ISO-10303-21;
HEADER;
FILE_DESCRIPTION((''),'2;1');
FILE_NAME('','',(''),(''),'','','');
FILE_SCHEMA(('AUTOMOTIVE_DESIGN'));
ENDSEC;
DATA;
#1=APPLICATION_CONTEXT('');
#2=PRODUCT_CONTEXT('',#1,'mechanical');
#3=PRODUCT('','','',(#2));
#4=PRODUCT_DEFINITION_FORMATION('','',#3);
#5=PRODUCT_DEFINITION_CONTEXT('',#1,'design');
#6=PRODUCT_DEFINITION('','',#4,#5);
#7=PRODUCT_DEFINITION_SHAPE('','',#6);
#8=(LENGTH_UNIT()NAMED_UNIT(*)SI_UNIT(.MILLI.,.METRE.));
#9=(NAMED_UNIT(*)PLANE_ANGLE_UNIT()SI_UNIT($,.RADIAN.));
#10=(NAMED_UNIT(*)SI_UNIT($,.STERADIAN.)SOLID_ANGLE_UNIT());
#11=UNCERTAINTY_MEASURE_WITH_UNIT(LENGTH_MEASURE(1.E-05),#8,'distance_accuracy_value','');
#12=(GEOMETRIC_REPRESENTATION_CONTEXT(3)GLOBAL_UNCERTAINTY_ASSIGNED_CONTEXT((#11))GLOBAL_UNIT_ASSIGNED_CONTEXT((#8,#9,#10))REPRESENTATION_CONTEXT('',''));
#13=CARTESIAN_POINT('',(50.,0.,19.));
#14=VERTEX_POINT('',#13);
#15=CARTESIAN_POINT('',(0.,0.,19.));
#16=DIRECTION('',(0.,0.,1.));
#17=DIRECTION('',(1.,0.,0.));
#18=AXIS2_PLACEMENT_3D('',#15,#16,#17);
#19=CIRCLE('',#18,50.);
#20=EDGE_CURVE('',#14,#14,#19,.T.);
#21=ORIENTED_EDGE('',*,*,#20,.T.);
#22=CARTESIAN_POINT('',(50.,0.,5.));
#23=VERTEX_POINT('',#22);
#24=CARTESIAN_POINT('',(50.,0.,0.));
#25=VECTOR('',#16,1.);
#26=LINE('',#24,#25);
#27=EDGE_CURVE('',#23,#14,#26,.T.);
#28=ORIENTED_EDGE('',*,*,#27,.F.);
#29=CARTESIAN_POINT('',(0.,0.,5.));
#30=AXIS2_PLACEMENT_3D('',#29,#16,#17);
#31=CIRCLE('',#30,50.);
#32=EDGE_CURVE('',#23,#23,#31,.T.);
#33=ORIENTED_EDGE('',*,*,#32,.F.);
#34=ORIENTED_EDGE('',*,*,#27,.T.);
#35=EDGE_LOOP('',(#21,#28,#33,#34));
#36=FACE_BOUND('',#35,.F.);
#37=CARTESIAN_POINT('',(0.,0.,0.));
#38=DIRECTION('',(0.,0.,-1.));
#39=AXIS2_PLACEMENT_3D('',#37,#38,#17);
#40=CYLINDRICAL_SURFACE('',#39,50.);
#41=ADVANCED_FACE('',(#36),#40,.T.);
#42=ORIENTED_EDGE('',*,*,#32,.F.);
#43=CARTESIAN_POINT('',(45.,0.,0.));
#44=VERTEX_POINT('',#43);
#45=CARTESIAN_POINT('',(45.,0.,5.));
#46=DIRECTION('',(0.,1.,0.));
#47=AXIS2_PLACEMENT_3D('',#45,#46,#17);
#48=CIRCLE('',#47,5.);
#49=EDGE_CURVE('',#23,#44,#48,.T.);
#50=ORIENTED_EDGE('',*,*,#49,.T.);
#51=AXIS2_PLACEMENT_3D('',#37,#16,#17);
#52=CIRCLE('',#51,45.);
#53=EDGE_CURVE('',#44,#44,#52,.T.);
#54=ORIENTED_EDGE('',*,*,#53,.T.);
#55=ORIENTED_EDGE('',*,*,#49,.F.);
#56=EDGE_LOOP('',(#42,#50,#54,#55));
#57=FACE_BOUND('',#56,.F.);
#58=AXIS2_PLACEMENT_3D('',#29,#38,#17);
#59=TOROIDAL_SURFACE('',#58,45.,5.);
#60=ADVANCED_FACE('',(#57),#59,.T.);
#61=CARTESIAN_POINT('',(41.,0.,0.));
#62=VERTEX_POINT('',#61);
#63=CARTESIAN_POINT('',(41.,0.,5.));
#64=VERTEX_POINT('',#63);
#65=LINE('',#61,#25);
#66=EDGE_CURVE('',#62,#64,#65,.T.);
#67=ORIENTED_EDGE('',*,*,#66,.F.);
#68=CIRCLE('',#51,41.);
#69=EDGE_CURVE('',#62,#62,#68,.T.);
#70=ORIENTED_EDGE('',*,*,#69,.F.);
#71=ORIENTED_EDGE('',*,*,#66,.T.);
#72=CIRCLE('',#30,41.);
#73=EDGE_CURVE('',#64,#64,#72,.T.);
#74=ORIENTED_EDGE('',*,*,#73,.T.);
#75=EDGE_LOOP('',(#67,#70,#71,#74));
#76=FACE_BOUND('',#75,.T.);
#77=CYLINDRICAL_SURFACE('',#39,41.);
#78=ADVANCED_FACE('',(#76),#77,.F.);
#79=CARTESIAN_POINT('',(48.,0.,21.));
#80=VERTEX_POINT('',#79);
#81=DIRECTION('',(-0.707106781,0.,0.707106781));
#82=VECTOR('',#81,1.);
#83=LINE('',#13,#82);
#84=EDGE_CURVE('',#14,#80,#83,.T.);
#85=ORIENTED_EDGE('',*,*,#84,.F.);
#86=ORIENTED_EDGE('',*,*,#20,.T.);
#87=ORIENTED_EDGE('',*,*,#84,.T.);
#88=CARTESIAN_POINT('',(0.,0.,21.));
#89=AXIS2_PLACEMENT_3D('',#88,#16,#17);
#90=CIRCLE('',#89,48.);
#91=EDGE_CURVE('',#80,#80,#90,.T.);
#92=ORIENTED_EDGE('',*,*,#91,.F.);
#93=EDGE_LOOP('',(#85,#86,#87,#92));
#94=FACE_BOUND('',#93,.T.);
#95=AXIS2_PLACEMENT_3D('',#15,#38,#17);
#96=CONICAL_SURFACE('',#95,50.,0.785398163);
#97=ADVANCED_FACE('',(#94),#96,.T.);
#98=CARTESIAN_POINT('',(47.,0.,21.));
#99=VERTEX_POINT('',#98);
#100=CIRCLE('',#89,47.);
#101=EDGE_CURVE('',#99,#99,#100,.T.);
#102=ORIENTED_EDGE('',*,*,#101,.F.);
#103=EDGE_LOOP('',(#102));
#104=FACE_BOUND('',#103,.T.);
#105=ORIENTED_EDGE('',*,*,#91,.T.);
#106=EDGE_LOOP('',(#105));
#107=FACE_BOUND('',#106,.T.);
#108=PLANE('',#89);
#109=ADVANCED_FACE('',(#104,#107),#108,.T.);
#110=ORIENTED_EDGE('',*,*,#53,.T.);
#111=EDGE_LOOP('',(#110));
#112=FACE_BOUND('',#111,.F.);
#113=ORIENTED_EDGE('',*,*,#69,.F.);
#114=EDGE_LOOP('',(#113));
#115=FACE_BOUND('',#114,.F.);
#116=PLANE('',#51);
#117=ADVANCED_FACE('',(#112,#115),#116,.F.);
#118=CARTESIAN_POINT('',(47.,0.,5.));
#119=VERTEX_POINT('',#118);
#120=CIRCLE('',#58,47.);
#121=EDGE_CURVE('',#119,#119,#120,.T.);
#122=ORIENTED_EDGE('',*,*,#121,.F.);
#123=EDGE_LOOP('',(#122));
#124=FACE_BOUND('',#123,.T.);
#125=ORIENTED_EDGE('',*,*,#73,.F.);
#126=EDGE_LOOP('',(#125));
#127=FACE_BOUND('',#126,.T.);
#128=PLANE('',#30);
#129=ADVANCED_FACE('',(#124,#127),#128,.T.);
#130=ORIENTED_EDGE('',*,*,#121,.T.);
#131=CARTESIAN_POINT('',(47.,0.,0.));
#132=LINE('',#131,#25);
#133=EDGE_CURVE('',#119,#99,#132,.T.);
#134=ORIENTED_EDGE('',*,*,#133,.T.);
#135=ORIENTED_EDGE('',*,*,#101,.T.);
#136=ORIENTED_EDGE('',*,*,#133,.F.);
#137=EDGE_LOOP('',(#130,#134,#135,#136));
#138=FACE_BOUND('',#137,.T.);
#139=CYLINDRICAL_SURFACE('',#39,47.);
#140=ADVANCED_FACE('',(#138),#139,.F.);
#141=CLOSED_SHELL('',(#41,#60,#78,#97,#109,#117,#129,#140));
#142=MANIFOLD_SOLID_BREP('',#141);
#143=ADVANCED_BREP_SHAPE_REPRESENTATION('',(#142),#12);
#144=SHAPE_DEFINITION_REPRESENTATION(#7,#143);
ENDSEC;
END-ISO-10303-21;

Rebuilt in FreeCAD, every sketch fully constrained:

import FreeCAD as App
import Part
import Sketcher


def edges_at(feature, points):
    """Names of the edges that pass closest to the given points."""
    edges = feature.Shape.Edges
    near = lambda p: min(range(len(edges)), key=lambda i: edges[i].distToShape(Part.Vertex(*p))[0])
    return sorted({f"Edge{near(p) + 1}" for p in points})

doc = App.newDocument("Part")
params = doc.addObject("Spreadsheet::Sheet", "Params")
for row, (alias, value) in enumerate([
    ("sketch1_diameter", "95 mm"),
    ("sketch1_diameter2", "82 mm"),
    ("pad1_length", "5 mm"),
    ("sketch2_diameter", "100 mm"),
    ("sketch2_diameter2", "94 mm"),
    ("pad2_length", "21 mm"),
    ("fillet_radius", "5 mm"),
    ("chamfer_size", "2 mm"),
], start=1):
    params.set(f"A{row}", alias)
    params.set(f"B{row}", "=" + value)
    params.setAlias(f"B{row}", alias)

body = doc.addObject("PartDesign::Body", "Body")

# Sketch on XY plane
sketch1 = doc.addObject("Sketcher::SketchObject", "Sketch")
body.addObject(sketch1)
sketch1.AttachmentSupport = (doc.XY_Plane, [""])
sketch1.MapMode = "FlatFace"
sketch1.addGeometry(Part.Circle(App.Vector(0, 0, 0), App.Vector(0, 0, 1), 48), False)
sketch1.addGeometry(Part.Circle(App.Vector(0, 0, 0), App.Vector(0, 0, 1), 41), False)
sketch1.addConstraint(Sketcher.Constraint("Coincident", 0, 3, -1, 1))
sketch1.addConstraint(Sketcher.Constraint("Coincident", 1, 3, -1, 1))
sketch1.addConstraint(Sketcher.Constraint("Diameter", 0, 95.0))
sketch1.addConstraint(Sketcher.Constraint("Diameter", 1, 82.0))
sketch1.setExpression("Constraints[2]", "Params.sketch1_diameter")
sketch1.setExpression("Constraints[3]", "Params.sketch1_diameter2")
pad1 = doc.addObject("PartDesign::Pad", "Pad")
body.addObject(pad1)
pad1.Profile = sketch1
pad1.setExpression("Length", "Params.pad1_length")

# Sketch on XY plane
sketch2 = doc.addObject("Sketcher::SketchObject", "Sketch001")
body.addObject(sketch2)
sketch2.AttachmentSupport = (doc.XY_Plane, [""])
sketch2.MapMode = "FlatFace"
sketch2.addGeometry(Part.Circle(App.Vector(0, 0, 0), App.Vector(0, 0, 1), 50), False)
sketch2.addGeometry(Part.Circle(App.Vector(0, 0, 0), App.Vector(0, 0, 1), 47), False)
sketch2.addConstraint(Sketcher.Constraint("Coincident", 0, 3, -1, 1))
sketch2.addConstraint(Sketcher.Constraint("Coincident", 1, 3, -1, 1))
sketch2.addConstraint(Sketcher.Constraint("Diameter", 0, 100.0))
sketch2.addConstraint(Sketcher.Constraint("Diameter", 1, 94.0))
sketch2.setExpression("Constraints[2]", "Params.sketch2_diameter")
sketch2.setExpression("Constraints[3]", "Params.sketch2_diameter2")
pad2 = doc.addObject("PartDesign::Pad", "Pad001")
body.addObject(pad2)
pad2.Profile = sketch2
pad2.setExpression("Length", "Params.pad2_length")
doc.recompute()

fillet = doc.addObject("PartDesign::Fillet", "Fillet")
body.addObject(fillet)
fillet.Base = (pad2, edges_at(pad2, [(-50, 0, 0)]))
fillet.setExpression("Radius", "Params.fillet_radius")
doc.recompute()

chamfer = doc.addObject("PartDesign::Chamfer", "Chamfer")
body.addObject(chamfer)
chamfer.Base = (fillet, edges_at(fillet, [(-50, 0, 21)]))
chamfer.setExpression("Size", "Params.chamfer_size")

doc.recompute()
